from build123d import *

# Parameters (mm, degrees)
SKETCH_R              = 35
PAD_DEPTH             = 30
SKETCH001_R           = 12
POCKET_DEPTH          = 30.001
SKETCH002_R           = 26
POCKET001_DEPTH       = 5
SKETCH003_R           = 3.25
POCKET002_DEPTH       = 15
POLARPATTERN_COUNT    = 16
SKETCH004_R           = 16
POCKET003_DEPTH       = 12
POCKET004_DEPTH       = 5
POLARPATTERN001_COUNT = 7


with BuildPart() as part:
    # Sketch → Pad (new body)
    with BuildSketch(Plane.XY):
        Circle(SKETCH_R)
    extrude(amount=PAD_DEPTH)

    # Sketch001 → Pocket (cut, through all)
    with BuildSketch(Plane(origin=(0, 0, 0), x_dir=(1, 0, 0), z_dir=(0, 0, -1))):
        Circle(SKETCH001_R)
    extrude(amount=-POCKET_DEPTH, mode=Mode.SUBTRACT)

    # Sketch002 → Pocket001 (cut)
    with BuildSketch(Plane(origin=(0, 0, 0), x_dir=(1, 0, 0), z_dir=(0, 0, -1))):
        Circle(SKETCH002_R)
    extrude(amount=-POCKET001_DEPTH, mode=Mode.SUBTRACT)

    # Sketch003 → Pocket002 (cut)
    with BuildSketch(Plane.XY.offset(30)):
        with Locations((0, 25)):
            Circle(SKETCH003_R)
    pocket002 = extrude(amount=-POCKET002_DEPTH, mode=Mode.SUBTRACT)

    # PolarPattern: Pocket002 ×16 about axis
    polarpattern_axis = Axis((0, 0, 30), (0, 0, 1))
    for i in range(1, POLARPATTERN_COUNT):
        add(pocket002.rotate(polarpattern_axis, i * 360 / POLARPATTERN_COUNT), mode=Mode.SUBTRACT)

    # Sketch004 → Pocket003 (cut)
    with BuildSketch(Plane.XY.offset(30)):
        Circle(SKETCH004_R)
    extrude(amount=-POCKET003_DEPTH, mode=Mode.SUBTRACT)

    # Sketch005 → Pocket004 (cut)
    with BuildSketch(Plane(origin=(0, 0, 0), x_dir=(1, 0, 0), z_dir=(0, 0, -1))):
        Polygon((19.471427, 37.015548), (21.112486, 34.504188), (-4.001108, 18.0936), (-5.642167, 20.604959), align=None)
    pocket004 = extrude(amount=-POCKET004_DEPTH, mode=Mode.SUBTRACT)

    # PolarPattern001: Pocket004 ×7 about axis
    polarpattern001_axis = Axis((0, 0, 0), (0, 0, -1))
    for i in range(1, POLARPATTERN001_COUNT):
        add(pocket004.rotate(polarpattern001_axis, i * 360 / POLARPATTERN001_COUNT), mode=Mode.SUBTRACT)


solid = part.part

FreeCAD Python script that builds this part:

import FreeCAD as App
import Part
import Sketcher

V = App.Vector
Q = App.Units.Quantity

doc = App.newDocument("Part")
body = doc.addObject("PartDesign::Body", "Body")

# Sketch on XY plane
sketch1 = body.newObject("Sketcher::SketchObject", "Sketch")
sketch1.AttachmentSupport = (doc.getObject("XY_Plane"), [""])
sketch1.MapMode = "FlatFace"
sketch1.addGeometry(Part.Circle(V(0, 0, 0), V(0, 0, 1), 35), False)
sketch1.addConstraint([
    Sketcher.Constraint("Coincident", 0, 3, -1, 1),
    Sketcher.Constraint("Diameter", 0, Q("70 mm")),
])
pad1 = body.newObject("PartDesign::Pad", "Pad")
pad1.Profile = sketch1
pad1.Length = 30

# Sketch on XY plane
sketch2 = body.newObject("Sketcher::SketchObject", "Sketch001")
sketch2.AttachmentSupport = (doc.getObject("XY_Plane"), [""])
sketch2.MapMode = "FlatFace"
sketch2.addGeometry(Part.Circle(V(0, 0, 0), V(0, 0, 1), 12), False)
sketch2.addConstraint([
    Sketcher.Constraint("Coincident", 0, 3, -1, 1),
    Sketcher.Constraint("Diameter", 0, Q("24 mm")),
])
pocket1 = body.newObject("PartDesign::Pocket", "Pocket")
pocket1.Profile = sketch2
pocket1.Type = "ThroughAll"
pocket1.Reversed = True

# Sketch on XY plane
sketch3 = body.newObject("Sketcher::SketchObject", "Sketch002")
sketch3.AttachmentSupport = (doc.getObject("XY_Plane"), [""])
sketch3.MapMode = "FlatFace"
sketch3.addGeometry(Part.Circle(V(0, 0, 0), V(0, 0, 1), 26), False)
sketch3.addConstraint([
    Sketcher.Constraint("Coincident", 0, 3, -1, 1),
    Sketcher.Constraint("Diameter", 0, Q("52 mm")),
])
pocket2 = body.newObject("PartDesign::Pocket", "Pocket001")
pocket2.Profile = sketch3
pocket2.Length = 5
pocket2.Reversed = True

# Sketch on XY plane
sketch4 = body.newObject("Sketcher::SketchObject", "Sketch003")
sketch4.AttachmentSupport = (doc.getObject("XY_Plane"), [""])
sketch4.MapMode = "FlatFace"
sketch4.AttachmentOffset = App.Placement(V(0, 0, 30), App.Rotation())
sketch4.addGeometry(Part.Circle(V(0, 25, 0), V(0, 0, 1), 3.2), False)
sketch4.addConstraint([
    Sketcher.Constraint("PointOnObject", 0, 3, -2),
    Sketcher.Constraint("Diameter", 0, Q("6.5 mm")),
    Sketcher.Constraint("DistanceY", -1, 1, 0, 3, Q("25 mm")),
])
pocket3 = body.newObject("PartDesign::Pocket", "Pocket002")
pocket3.Profile = sketch4
pocket3.Length = 15
doc.recompute()

polarpattern = body.newObject("PartDesign::PolarPattern", "PolarPattern")
polarpattern.Originals = [pocket3]
polarpattern.Axis = (doc.getObject("Z_Axis"), [""])
polarpattern.Angle = 360
polarpattern.Occurrences = 16
body.Tip = polarpattern

# Sketch on XY plane
sketch5 = body.newObject("Sketcher::SketchObject", "Sketch004")
sketch5.AttachmentSupport = (doc.getObject("XY_Plane"), [""])
sketch5.MapMode = "FlatFace"
sketch5.AttachmentOffset = App.Placement(V(0, 0, 30), App.Rotation())
sketch5.addGeometry(Part.Circle(V(0, 0, 0), V(0, 0, 1), 16), False)
sketch5.addConstraint([
    Sketcher.Constraint("Coincident", 0, 3, -1, 1),
    Sketcher.Constraint("Diameter", 0, Q("32 mm")),
])
pocket4 = body.newObject("PartDesign::Pocket", "Pocket003")
pocket4.Profile = sketch5
pocket4.Length = 12

# Sketch on XY plane
sketch6 = body.newObject("Sketcher::SketchObject", "Sketch005")
sketch6.AttachmentSupport = (doc.getObject("XY_Plane"), [""])
sketch6.MapMode = "FlatFace"
sketch6.addGeometry([
    Part.LineSegment(V(21.1, -34.5, 0), V(19.5, -37, 0)),
    Part.LineSegment(V(19.5, -37, 0), V(-5.6, -20.6, 0)),
    Part.LineSegment(V(-5.6, -20.6, 0), V(-4, -18.1, 0)),
    Part.LineSegment(V(-4, -18.1, 0), V(21.1, -34.5, 0)),
], False)
sketch6.addConstraint([
    Sketcher.Constraint("Coincident", 0, 2, 1, 1),
    Sketcher.Constraint("Coincident", 1, 2, 2, 1),
    Sketcher.Constraint("Coincident", 2, 2, 3, 1),
    Sketcher.Constraint("Coincident", 3, 2, 0, 1),
    Sketcher.Constraint("Perpendicular", 0, 1),
    Sketcher.Constraint("Perpendicular", 1, 2),
    Sketcher.Constraint("Perpendicular", 2, 3),
    Sketcher.Constraint("Distance", 0, Q("3.000001 mm")),
    Sketcher.Constraint("Distance", 1, Q("30.000001 mm")),
    Sketcher.Constraint("DistanceY", 2, 2, -1, 1, Q("18.0936 mm")),
    Sketcher.Constraint("DistanceY", 0, 2, -1, 1, Q("37.015548 mm")),
    Sketcher.Constraint("DistanceX", 2, 2, -1, 1, Q("4.001108 mm")),
])
pocket5 = body.newObject("PartDesign::Pocket", "Pocket004")
pocket5.Profile = sketch6
pocket5.Length = 5
pocket5.Reversed = True
doc.recompute()

polarpattern2 = body.newObject("PartDesign::PolarPattern", "PolarPattern001")
polarpattern2.Originals = [pocket5]
polarpattern2.Axis = (doc.getObject("Z_Axis"), [""])
polarpattern2.Angle = 360
polarpattern2.Occurrences = 7
body.Tip = polarpattern2

doc.recompute()
